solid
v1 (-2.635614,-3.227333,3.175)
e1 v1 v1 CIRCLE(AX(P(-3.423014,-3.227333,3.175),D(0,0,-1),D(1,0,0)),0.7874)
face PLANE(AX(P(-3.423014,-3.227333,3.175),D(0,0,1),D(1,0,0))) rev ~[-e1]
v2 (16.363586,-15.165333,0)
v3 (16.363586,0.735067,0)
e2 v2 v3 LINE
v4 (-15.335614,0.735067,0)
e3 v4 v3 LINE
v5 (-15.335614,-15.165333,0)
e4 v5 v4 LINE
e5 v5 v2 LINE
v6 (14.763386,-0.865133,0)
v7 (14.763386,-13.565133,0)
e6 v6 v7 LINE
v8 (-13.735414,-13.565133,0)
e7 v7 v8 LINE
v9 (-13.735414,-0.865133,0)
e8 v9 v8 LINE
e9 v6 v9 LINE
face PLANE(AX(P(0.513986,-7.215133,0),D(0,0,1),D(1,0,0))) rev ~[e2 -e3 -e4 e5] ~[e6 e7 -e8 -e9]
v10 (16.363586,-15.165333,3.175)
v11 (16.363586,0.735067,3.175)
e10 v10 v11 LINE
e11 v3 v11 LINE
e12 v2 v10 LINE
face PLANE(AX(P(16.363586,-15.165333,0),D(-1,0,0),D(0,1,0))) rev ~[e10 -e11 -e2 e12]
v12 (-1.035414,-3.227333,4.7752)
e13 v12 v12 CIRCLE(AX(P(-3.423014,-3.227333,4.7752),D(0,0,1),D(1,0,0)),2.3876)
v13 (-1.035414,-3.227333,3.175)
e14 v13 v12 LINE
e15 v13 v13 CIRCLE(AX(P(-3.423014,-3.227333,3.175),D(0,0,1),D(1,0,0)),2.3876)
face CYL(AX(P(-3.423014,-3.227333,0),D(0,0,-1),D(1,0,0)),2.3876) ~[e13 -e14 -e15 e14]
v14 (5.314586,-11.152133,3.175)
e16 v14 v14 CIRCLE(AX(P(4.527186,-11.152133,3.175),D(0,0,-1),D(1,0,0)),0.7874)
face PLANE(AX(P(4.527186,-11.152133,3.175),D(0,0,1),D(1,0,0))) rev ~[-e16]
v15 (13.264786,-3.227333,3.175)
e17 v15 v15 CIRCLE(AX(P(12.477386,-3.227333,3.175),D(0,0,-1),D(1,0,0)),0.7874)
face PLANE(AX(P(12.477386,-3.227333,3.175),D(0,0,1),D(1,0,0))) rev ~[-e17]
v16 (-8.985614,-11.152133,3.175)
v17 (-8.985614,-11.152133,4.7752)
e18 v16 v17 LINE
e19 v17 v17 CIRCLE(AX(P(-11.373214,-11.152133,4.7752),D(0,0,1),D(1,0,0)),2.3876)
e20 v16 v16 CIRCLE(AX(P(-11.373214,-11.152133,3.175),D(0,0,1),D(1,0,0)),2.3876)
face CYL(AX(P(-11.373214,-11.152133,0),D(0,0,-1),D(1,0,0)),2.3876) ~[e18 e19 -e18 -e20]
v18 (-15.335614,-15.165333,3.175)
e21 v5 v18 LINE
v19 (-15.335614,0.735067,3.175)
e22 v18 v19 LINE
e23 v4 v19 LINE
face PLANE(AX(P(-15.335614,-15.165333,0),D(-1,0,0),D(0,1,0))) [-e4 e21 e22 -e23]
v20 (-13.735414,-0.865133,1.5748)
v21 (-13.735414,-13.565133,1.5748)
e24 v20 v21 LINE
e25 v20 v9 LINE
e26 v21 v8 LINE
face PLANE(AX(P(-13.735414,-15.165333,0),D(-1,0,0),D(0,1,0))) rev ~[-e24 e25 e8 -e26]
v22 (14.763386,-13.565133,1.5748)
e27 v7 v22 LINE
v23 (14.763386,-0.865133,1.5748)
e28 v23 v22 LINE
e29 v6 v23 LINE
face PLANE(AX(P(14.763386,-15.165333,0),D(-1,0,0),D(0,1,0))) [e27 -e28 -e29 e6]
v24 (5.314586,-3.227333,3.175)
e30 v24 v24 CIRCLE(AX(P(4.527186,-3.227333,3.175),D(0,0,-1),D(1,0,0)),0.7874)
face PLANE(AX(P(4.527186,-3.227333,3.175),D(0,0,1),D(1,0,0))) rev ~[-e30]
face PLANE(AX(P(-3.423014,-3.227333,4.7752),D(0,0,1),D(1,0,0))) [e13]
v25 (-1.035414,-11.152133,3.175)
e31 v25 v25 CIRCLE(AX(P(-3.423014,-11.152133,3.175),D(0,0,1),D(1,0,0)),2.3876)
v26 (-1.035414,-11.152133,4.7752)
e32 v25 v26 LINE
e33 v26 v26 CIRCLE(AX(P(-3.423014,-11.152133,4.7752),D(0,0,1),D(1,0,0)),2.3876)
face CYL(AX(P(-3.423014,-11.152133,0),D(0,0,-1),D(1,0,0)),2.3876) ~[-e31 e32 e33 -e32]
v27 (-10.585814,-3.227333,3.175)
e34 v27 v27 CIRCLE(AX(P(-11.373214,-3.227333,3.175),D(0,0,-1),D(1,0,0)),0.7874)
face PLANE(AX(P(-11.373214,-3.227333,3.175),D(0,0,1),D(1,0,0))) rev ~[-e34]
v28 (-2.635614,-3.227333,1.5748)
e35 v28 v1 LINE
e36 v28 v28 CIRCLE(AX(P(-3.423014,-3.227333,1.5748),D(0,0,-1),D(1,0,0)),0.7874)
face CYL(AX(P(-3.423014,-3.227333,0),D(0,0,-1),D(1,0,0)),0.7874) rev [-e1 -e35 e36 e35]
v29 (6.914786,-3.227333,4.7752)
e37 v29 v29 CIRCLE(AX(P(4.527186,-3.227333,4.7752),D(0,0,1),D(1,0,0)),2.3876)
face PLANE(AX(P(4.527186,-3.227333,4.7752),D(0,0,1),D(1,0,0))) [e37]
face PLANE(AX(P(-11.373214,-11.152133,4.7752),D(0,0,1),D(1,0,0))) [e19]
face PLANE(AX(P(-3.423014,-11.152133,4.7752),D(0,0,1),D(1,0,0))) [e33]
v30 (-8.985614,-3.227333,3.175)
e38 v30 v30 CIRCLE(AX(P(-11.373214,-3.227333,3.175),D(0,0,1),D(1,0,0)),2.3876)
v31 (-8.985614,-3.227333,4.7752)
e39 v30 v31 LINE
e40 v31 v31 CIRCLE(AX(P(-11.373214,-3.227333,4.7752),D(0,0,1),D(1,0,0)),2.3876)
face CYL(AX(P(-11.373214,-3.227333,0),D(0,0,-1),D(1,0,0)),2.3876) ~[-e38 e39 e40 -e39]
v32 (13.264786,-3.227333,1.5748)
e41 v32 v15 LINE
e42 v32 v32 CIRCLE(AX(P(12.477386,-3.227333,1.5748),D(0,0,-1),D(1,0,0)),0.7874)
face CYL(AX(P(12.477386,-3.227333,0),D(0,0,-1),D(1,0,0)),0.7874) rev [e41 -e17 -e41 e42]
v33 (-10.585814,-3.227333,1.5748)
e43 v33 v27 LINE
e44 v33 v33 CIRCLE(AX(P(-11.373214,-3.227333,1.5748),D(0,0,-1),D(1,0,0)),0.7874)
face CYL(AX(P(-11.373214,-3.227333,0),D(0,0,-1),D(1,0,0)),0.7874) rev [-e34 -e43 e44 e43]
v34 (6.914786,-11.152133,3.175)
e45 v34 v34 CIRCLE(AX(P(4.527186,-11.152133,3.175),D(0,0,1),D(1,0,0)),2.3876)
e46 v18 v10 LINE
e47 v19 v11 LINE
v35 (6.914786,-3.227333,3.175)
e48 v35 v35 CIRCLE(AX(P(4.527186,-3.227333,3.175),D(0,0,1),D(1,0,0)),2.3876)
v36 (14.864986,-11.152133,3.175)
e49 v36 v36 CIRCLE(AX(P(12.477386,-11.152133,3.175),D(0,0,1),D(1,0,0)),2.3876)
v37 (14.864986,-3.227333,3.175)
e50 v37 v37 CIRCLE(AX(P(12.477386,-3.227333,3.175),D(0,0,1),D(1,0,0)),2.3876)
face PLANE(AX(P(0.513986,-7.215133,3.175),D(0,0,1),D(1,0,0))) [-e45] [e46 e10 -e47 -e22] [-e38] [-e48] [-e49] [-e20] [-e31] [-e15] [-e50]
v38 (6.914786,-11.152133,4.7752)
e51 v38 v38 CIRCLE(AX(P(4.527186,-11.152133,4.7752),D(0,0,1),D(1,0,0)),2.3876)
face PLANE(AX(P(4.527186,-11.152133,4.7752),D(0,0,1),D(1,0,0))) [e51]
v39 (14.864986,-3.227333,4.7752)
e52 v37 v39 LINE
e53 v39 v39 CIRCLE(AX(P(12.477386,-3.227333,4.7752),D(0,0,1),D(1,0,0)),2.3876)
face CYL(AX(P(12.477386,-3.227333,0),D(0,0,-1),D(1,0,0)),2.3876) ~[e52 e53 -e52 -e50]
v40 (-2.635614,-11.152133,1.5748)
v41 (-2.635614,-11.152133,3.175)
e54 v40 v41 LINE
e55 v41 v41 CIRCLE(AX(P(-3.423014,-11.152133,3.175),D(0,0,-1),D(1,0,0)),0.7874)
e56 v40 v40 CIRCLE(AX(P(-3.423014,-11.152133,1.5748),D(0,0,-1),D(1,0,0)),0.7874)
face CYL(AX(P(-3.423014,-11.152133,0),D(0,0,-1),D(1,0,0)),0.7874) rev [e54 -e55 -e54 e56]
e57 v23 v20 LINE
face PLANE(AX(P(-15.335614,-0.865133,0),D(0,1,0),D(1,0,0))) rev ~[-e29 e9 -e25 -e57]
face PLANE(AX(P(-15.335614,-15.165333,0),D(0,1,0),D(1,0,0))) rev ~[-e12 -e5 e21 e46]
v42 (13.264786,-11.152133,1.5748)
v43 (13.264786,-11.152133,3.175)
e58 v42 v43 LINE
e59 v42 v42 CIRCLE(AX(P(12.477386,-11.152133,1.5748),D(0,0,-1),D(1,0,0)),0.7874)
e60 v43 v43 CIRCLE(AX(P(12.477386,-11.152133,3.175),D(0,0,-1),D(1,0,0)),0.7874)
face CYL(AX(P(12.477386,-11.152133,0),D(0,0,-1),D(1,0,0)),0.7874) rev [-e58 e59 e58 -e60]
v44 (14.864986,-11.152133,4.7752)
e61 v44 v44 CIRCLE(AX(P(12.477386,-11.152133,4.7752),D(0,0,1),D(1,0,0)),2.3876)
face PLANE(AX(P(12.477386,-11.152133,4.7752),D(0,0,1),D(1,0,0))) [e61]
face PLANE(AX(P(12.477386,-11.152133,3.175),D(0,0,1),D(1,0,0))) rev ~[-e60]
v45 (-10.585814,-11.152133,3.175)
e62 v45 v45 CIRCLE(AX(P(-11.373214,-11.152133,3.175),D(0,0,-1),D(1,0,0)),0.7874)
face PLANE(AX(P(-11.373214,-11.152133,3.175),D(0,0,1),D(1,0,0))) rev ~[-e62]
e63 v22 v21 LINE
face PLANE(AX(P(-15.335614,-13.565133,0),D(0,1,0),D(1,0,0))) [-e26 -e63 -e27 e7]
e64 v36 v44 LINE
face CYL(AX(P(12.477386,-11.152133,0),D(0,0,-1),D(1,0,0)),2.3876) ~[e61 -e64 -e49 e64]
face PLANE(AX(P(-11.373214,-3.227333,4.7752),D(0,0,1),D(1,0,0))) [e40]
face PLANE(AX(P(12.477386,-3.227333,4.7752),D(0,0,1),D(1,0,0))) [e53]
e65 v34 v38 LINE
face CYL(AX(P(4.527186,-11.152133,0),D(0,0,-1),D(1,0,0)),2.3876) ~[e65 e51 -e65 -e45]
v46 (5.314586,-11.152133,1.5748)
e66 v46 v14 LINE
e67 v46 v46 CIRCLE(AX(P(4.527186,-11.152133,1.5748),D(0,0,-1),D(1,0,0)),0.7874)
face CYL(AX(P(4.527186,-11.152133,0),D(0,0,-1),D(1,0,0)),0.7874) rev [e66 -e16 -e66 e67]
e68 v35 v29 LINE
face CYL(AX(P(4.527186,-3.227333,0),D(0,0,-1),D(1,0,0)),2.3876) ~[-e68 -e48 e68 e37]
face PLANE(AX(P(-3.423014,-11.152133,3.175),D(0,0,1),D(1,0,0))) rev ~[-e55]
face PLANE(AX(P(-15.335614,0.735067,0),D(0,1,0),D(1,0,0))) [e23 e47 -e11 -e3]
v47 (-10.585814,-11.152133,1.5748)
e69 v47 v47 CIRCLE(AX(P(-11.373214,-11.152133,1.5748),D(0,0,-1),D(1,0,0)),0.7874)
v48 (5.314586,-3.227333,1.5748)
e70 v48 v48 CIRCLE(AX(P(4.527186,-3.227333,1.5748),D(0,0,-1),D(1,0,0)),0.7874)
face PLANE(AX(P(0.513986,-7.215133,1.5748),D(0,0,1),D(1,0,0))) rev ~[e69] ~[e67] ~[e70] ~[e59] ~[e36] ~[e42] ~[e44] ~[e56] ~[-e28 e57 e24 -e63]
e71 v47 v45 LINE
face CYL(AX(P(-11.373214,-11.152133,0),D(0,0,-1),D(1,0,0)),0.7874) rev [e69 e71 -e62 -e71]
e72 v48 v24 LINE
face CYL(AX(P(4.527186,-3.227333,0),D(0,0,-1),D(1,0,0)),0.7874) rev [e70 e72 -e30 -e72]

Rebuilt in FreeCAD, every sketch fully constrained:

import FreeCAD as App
import Part
import Sketcher
from FreeCAD import Vector
Q = App.Units.Quantity


def faces_at(feature, points):
    """Names of the faces that lie closest to the given points."""
    faces = feature.Shape.Faces
    near = lambda p: min(range(len(faces)), key=lambda i: faces[i].distToShape(Part.Vertex(*p))[0])
    return sorted({f"Face{near(p) + 1}" for p in points})

doc = App.newDocument("Part")
body = doc.addObject("PartDesign::Body", "Body")

# Sketch on XY plane
sketch1 = body.newObject("Sketcher::SketchObject", "Sketch")
sketch1.AttachmentSupport = (doc.getObject("XY_Plane"), [""])
sketch1.MapMode = "FlatFace"
sketch1.addGeometry(Part.LineSegment(Vector(-15.335614, 0.735067, 0), Vector(-15.335614, -15.165333, 0)), False)
sketch1.addGeometry(Part.LineSegment(Vector(-15.335614, -15.165333, 0), Vector(16.363586, -15.165333, 0)), False)
sketch1.addGeometry(Part.LineSegment(Vector(16.363586, -15.165333, 0), Vector(16.363586, 0.735067, 0)), False)
sketch1.addGeometry(Part.LineSegment(Vector(16.363586, 0.735067, 0), Vector(-15.335614, 0.735067, 0)), False)
sketch1.addGeometry(Part.Circle(Vector(-11.373214, -11.152133, 0), Vector(0, 0, 1), 2.3876), False)
sketch1.addGeometry(Part.Circle(Vector(-3.423014, -11.152133, 0), Vector(0, 0, 1), 2.3876), False)
sketch1.addGeometry(Part.Circle(Vector(4.527186, -11.152133, 0), Vector(0, 0, 1), 2.3876), False)
sketch1.addGeometry(Part.Circle(Vector(12.477386, -11.152133, 0), Vector(0, 0, 1), 2.3876), False)
sketch1.addGeometry(Part.Circle(Vector(-11.373214, -3.227333, 0), Vector(0, 0, 1), 2.3876), False)
sketch1.addGeometry(Part.Circle(Vector(-3.423014, -3.227333, 0), Vector(0, 0, 1), 2.3876), False)
sketch1.addGeometry(Part.Circle(Vector(4.527186, -3.227333, 0), Vector(0, 0, 1), 2.3876), False)
sketch1.addGeometry(Part.Circle(Vector(12.477386, -3.227333, 0), Vector(0, 0, 1), 2.3876), False)
sketch1.addConstraint(Sketcher.Constraint("Coincident", 0, 2, 1, 1))
sketch1.addConstraint(Sketcher.Constraint("Coincident", 1, 2, 2, 1))
sketch1.addConstraint(Sketcher.Constraint("Coincident", 2, 2, 3, 1))
sketch1.addConstraint(Sketcher.Constraint("Coincident", 3, 2, 0, 1))
sketch1.addConstraint(Sketcher.Constraint("Vertical", 0))
sketch1.addConstraint(Sketcher.Constraint("Horizontal", 1))
sketch1.addConstraint(Sketcher.Constraint("Vertical", 2))
sketch1.addConstraint(Sketcher.Constraint("Horizontal", 3))
sketch1.addConstraint(Sketcher.Constraint("Equal", 4, 5))
sketch1.addConstraint(Sketcher.Constraint("Equal", 5, 6))
sketch1.addConstraint(Sketcher.Constraint("Equal", 6, 7))
sketch1.addConstraint(Sketcher.Constraint("Equal", 7, 8))
sketch1.addConstraint(Sketcher.Constraint("Equal", 8, 9))
sketch1.addConstraint(Sketcher.Constraint("Equal", 9, 10))
sketch1.addConstraint(Sketcher.Constraint("Equal", 10, 11))
sketch1.addConstraint(Sketcher.Constraint("Horizontal", 4, 3, 5, 3))
sketch1.addConstraint(Sketcher.Constraint("Horizontal", 5, 3, 6, 3))
sketch1.addConstraint(Sketcher.Constraint("Horizontal", 6, 3, 7, 3))
sketch1.addConstraint(Sketcher.Constraint("Horizontal", 8, 3, 9, 3))
sketch1.addConstraint(Sketcher.Constraint("Horizontal", 9, 3, 10, 3))
sketch1.addConstraint(Sketcher.Constraint("Horizontal", 10, 3, 11, 3))
sketch1.addConstraint(Sketcher.Constraint("Vertical", 4, 3, 8, 3))
sketch1.addConstraint(Sketcher.Constraint("Vertical", 5, 3, 9, 3))
sketch1.addConstraint(Sketcher.Constraint("Vertical", 6, 3, 10, 3))
sketch1.addConstraint(Sketcher.Constraint("Vertical", 7, 3, 11, 3))
sketch1.addConstraint(Sketcher.Constraint("Diameter", 4, Q("0.188 in")))
sketch1.addConstraint(Sketcher.Constraint("DistanceX", 1, 1, 1, 2, Q("1.248 in")))
sketch1.addConstraint(Sketcher.Constraint("DistanceY", 0, 2, 0, 1, Q("0.626 in")))
sketch1.addConstraint(Sketcher.Constraint("DistanceY", 0, 2, 8, 3, Q("0.47 in")))
sketch1.addConstraint(Sketcher.Constraint("DistanceX", 4, 3, 5, 3, Q("0.313 in")))
sketch1.addConstraint(Sketcher.Constraint("DistanceX", 5, 3, 6, 3, Q("0.313 in")))
sketch1.addConstraint(Sketcher.Constraint("DistanceX", 6, 3, 7, 3, Q("0.313 in")))
sketch1.addConstraint(Sketcher.Constraint("DistanceY", 4, 3, 8, 3, Q("0.312 in")))
sketch1.addConstraint(Sketcher.Constraint("DistanceX", 0, 2, 4, 3, Q("0.156 in")))
sketch1.addConstraint(Sketcher.Constraint("DistanceX", 4, 3, -1, 1, Q("11.373214 mm")))
sketch1.addConstraint(Sketcher.Constraint("DistanceY", 4, 3, -1, 1, Q("11.152133 mm")))
pad1 = body.newObject("PartDesign::Pad", "Pad")
pad1.Profile = sketch1
pad1.Length = Q("0.125 in")

# Sketch on XY plane
sketch2 = body.newObject("Sketcher::SketchObject", "Sketch001")
sketch2.AttachmentSupport = (doc.getObject("XY_Plane"), [""])
sketch2.MapMode = "FlatFace"
sketch2.addGeometry(Part.Circle(Vector(-11.373214, -3.227333, 0), Vector(0, 0, 1), 2.3876), False)
sketch2.addGeometry(Part.Circle(Vector(-3.423014, -3.227333, 0), Vector(0, 0, 1), 2.3876), False)
sketch2.addGeometry(Part.Circle(Vector(4.527186, -3.227333, 0), Vector(0, 0, 1), 2.3876), False)
sketch2.addGeometry(Part.Circle(Vector(12.477386, -3.227333, 0), Vector(0, 0, 1), 2.3876), False)
sketch2.addGeometry(Part.Circle(Vector(12.477386, -11.152133, 0), Vector(0, 0, 1), 2.3876), False)
sketch2.addGeometry(Part.Circle(Vector(4.527186, -11.152133, 0), Vector(0, 0, 1), 2.3876), False)
sketch2.addGeometry(Part.Circle(Vector(-3.423014, -11.152133, 0), Vector(0, 0, 1), 2.3876), False)
sketch2.addGeometry(Part.Circle(Vector(-11.373214, -11.152133, 0), Vector(0, 0, 1), 2.3876), False)
sketch2.addConstraint(Sketcher.Constraint("Equal", 0, 1))
sketch2.addConstraint(Sketcher.Constraint("Equal", 1, 2))
sketch2.addConstraint(Sketcher.Constraint("Equal", 2, 3))
sketch2.addConstraint(Sketcher.Constraint("Equal", 3, 4))
sketch2.addConstraint(Sketcher.Constraint("Equal", 4, 5))
sketch2.addConstraint(Sketcher.Constraint("Equal", 5, 6))
sketch2.addConstraint(Sketcher.Constraint("Equal", 6, 7))
sketch2.addConstraint(Sketcher.Constraint("Horizontal", 0, 3, 1, 3))
sketch2.addConstraint(Sketcher.Constraint("Horizontal", 1, 3, 2, 3))
sketch2.addConstraint(Sketcher.Constraint("Horizontal", 2, 3, 3, 3))
sketch2.addConstraint(Sketcher.Constraint("Horizontal", 4, 3, 5, 3))
sketch2.addConstraint(Sketcher.Constraint("Horizontal", 5, 3, 6, 3))
sketch2.addConstraint(Sketcher.Constraint("Horizontal", 6, 3, 7, 3))
sketch2.addConstraint(Sketcher.Constraint("Vertical", 3, 3, 4, 3))
sketch2.addConstraint(Sketcher.Constraint("Vertical", 2, 3, 5, 3))
sketch2.addConstraint(Sketcher.Constraint("Vertical", 1, 3, 6, 3))
sketch2.addConstraint(Sketcher.Constraint("Vertical", 0, 3, 7, 3))
sketch2.addConstraint(Sketcher.Constraint("Diameter", 0, Q("0.188 in")))
sketch2.addConstraint(Sketcher.Constraint("DistanceX", 0, 3, 1, 3, Q("0.313 in")))
sketch2.addConstraint(Sketcher.Constraint("DistanceX", 1, 3, 2, 3, Q("0.313 in")))
sketch2.addConstraint(Sketcher.Constraint("DistanceX", 2, 3, 3, 3, Q("0.313 in")))
sketch2.addConstraint(Sketcher.Constraint("DistanceY", 4, 3, 3, 3, Q("0.312 in")))
sketch2.addConstraint(Sketcher.Constraint("DistanceX", 0, 3, -1, 1, Q("11.373214 mm")))
sketch2.addConstraint(Sketcher.Constraint("DistanceY", 0, 3, -1, 1, Q("3.227333 mm")))
pad2 = body.newObject("PartDesign::Pad", "Pad001")
pad2.Profile = sketch2
pad2.Length = Q("0.188 in")
doc.recompute()

thickness = body.newObject("PartDesign::Thickness", "Thickness")
thickness.Base = (pad2, faces_at(pad2, [(0.514, -7.215, 0)]))
thickness.Value = Q("0.063 in")
thickness.Reversed = True
thickness.Join = "Intersection"

doc.recompute()
